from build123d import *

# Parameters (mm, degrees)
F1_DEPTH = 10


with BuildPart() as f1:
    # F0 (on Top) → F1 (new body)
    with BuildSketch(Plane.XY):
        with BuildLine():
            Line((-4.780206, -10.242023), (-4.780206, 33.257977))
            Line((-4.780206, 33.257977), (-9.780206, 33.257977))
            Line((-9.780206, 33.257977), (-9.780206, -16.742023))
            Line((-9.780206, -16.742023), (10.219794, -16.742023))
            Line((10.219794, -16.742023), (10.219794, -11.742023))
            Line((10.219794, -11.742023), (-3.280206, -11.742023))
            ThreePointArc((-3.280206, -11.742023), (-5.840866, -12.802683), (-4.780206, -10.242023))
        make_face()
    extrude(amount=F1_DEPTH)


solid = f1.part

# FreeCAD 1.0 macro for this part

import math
import FreeCAD as App
import Part
import Sketcher

doc = App.newDocument("Part")
body = doc.addObject("PartDesign::Body", "Body")

# Sketch on XY plane
sketch1 = body.newObject("Sketcher::SketchObject", "Sketch")
sketch1.AttachmentSupport = (doc.getObject("XY_Plane"), [""])
sketch1.MapMode = "FlatFace"
sketch1.addGeometry([
    Part.LineSegment(App.Vector(-4.8, -10.2, 0), App.Vector(-4.8, 33.3, 0)),  # 0
    Part.LineSegment(App.Vector(-4.8, 33.3, 0), App.Vector(-9.8, 33.3, 0)),  # 1
    Part.LineSegment(App.Vector(-9.8, 33.3, 0), App.Vector(-9.8, -16.7, 0)),  # 2
    Part.LineSegment(App.Vector(-9.8, -16.7, 0), App.Vector(10.2, -16.7, 0)),  # 3
    Part.LineSegment(App.Vector(10.2, -16.7, 0), App.Vector(10.2, -11.7, 0)),  # 4
    Part.LineSegment(App.Vector(10.2, -11.7, 0), App.Vector(-3.3, -11.7, 0)),  # 5
    Part.ArcOfCircle(Part.Circle(App.Vector(-4.8, -11.7, 0), App.Vector(0, 0, 1), 1.5), math.radians(90), math.radians(360)),  # 6
], False)
sketch1.addConstraint([
    Sketcher.Constraint("Coincident", 0, 2, 1, 1),
    Sketcher.Constraint("Coincident", 1, 2, 2, 1),
    Sketcher.Constraint("Coincident", 2, 2, 3, 1),
    Sketcher.Constraint("Coincident", 3, 2, 4, 1),
    Sketcher.Constraint("Coincident", 4, 2, 5, 1),
    Sketcher.Constraint("Coincident", 5, 2, 6, 2),
    Sketcher.Constraint("Coincident", 6, 1, 0, 1),
    Sketcher.Constraint("Vertical", 0),
    Sketcher.Constraint("Horizontal", 1),
    Sketcher.Constraint("Vertical", 2),
    Sketcher.Constraint("Horizontal", 3),
    Sketcher.Constraint("Vertical", 4),
    Sketcher.Constraint("Horizontal", 5),
    Sketcher.Constraint("Horizontal", 6, 3, 4, 2),
    Sketcher.Constraint("Vertical", 6, 3, 0, 2),
    Sketcher.Constraint("Equal", 1, 4),
    Sketcher.Constraint("Radius", 6, 1.5),
    Sketcher.Constraint("DistanceX", 1, 2, 1, 1, 5.0),
    Sketcher.Constraint("DistanceX", 3, 1, 3, 2, 20.0),
    Sketcher.Constraint("DistanceY", 2, 2, 2, 1, 50.0),
    Sketcher.Constraint("DistanceX", 6, 3, -1, 1, 4.780206),
    Sketcher.Constraint("DistanceY", 6, 3, -1, 1, 11.742023),
])
pad1 = body.newObject("PartDesign::Pad", "Pad")
pad1.Profile = sketch1
pad1.Length = 10

doc.recompute()
